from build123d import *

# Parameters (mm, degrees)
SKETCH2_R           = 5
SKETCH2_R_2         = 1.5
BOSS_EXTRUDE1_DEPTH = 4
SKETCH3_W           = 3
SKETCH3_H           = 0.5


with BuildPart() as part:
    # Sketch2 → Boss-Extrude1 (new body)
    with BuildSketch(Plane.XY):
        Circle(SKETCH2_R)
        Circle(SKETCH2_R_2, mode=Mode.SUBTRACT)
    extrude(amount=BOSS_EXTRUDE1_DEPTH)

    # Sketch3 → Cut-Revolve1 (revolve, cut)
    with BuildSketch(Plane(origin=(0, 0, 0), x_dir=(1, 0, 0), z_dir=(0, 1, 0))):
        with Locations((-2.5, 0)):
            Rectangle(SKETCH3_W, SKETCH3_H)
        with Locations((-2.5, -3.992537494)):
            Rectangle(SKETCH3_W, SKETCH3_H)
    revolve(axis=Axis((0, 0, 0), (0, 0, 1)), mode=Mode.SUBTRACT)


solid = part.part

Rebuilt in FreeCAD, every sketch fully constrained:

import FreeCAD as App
import Part
import Sketcher


def add_polygon(sketch, points):
    """Adds a closed chain of lines whose ends are joined by coincident constraints."""
    first, n = sketch.GeometryCount, len(points)
    for a, b in zip(points, points[1:] + points[:1]):
        sketch.addGeometry(Part.LineSegment(App.Vector(*a, 0), App.Vector(*b, 0)), False)
    for i in range(n):
        sketch.addConstraint(Sketcher.Constraint("Coincident", first + i, 2, first + (i + 1) % n, 1))

doc = App.newDocument("Part")
params = doc.addObject("Spreadsheet::Sheet", "Params")
for row, (alias, value) in enumerate([
    ("sketch1_diameter", "10 mm"),
    ("sketch1_diameter2", "3 mm"),
    ("pad1_length", "4 mm"),
    ("sketch2_width", "3 mm"),
    ("sketch2_height", "0.5 mm"),
    ("groove_angle", "360 deg"),
], start=1):
    params.set(f"A{row}", alias)
    params.set(f"B{row}", "=" + value)
    params.setAlias(f"B{row}", alias)

body = doc.addObject("PartDesign::Body", "Body")

# Sketch on XY plane
sketch1 = body.newObject("Sketcher::SketchObject", "Sketch")
sketch1.AttachmentSupport = (doc.getObject("XY_Plane"), [""])
sketch1.MapMode = "FlatFace"
sketch1.addGeometry([
    Part.Circle(App.Vector(0, 0, 0), App.Vector(0, 0, 1), 5),
    Part.Circle(App.Vector(0, 0, 0), App.Vector(0, 0, 1), 1.5),
], False)
sketch1.addConstraint([
    Sketcher.Constraint("Coincident", 0, 3, -1, 1),
    Sketcher.Constraint("Coincident", 1, 3, -1, 1),
    Sketcher.Constraint("Diameter", 0, 10.0),
    Sketcher.Constraint("Diameter", 1, 3.0),
])
sketch1.setExpression("Constraints[2]", "Params.sketch1_diameter")
sketch1.setExpression("Constraints[3]", "Params.sketch1_diameter2")
pad1 = body.newObject("PartDesign::Pad", "Pad")
pad1.Profile = sketch1
pad1.setExpression("Length", "Params.pad1_length")

# Sketch on XZ plane
sketch2 = body.newObject("Sketcher::SketchObject", "Sketch001")
sketch2.AttachmentSupport = (doc.getObject("XZ_Plane"), [""])
sketch2.MapMode = "FlatFace"
add_polygon(sketch2, [(-4, -0.25), (-4, 0.25), (-1, 0.25), (-1, -0.25)])  # lines 0-3
add_polygon(sketch2, [(-4, 3.74), (-4, 4.24), (-1, 4.24), (-1, 3.74)])  # lines 4-7
sketch2.addConstraint([
    Sketcher.Constraint("Vertical", 0),
    Sketcher.Constraint("Horizontal", 1),
    Sketcher.Constraint("Vertical", 2),
    Sketcher.Constraint("Horizontal", 3),
    Sketcher.Constraint("Vertical", 4),
    Sketcher.Constraint("Horizontal", 5),
    Sketcher.Constraint("Vertical", 6),
    Sketcher.Constraint("Horizontal", 7),
    Sketcher.Constraint("Vertical", 3, 2, 4, 2),
    Sketcher.Constraint("Vertical", 2, 2, 5, 2),
    Sketcher.Constraint("Equal", 2, 4),
    Sketcher.Constraint("DistanceX", 1, 1, 1, 2, 3.0),
    Sketcher.Constraint("DistanceY", 0, 1, 0, 2, 0.5),
    Sketcher.Constraint("DistanceX", 0, 2, -1, 1, 4.0),
    Sketcher.Constraint("DistanceY", -1, 1, 0, 2, 0.25),
    Sketcher.Constraint("DistanceY", -1, 1, 4, 2, 4.242537),
])
sketch2.setExpression("Constraints[19]", "Params.sketch2_width")
sketch2.setExpression("Constraints[20]", "Params.sketch2_height")
groove = body.newObject("PartDesign::Groove", "Groove")
groove.Profile = sketch2
groove.ReferenceAxis = (sketch2, ["V_Axis"])
groove.setExpression("Angle", "Params.groove_angle")

doc.recompute()
